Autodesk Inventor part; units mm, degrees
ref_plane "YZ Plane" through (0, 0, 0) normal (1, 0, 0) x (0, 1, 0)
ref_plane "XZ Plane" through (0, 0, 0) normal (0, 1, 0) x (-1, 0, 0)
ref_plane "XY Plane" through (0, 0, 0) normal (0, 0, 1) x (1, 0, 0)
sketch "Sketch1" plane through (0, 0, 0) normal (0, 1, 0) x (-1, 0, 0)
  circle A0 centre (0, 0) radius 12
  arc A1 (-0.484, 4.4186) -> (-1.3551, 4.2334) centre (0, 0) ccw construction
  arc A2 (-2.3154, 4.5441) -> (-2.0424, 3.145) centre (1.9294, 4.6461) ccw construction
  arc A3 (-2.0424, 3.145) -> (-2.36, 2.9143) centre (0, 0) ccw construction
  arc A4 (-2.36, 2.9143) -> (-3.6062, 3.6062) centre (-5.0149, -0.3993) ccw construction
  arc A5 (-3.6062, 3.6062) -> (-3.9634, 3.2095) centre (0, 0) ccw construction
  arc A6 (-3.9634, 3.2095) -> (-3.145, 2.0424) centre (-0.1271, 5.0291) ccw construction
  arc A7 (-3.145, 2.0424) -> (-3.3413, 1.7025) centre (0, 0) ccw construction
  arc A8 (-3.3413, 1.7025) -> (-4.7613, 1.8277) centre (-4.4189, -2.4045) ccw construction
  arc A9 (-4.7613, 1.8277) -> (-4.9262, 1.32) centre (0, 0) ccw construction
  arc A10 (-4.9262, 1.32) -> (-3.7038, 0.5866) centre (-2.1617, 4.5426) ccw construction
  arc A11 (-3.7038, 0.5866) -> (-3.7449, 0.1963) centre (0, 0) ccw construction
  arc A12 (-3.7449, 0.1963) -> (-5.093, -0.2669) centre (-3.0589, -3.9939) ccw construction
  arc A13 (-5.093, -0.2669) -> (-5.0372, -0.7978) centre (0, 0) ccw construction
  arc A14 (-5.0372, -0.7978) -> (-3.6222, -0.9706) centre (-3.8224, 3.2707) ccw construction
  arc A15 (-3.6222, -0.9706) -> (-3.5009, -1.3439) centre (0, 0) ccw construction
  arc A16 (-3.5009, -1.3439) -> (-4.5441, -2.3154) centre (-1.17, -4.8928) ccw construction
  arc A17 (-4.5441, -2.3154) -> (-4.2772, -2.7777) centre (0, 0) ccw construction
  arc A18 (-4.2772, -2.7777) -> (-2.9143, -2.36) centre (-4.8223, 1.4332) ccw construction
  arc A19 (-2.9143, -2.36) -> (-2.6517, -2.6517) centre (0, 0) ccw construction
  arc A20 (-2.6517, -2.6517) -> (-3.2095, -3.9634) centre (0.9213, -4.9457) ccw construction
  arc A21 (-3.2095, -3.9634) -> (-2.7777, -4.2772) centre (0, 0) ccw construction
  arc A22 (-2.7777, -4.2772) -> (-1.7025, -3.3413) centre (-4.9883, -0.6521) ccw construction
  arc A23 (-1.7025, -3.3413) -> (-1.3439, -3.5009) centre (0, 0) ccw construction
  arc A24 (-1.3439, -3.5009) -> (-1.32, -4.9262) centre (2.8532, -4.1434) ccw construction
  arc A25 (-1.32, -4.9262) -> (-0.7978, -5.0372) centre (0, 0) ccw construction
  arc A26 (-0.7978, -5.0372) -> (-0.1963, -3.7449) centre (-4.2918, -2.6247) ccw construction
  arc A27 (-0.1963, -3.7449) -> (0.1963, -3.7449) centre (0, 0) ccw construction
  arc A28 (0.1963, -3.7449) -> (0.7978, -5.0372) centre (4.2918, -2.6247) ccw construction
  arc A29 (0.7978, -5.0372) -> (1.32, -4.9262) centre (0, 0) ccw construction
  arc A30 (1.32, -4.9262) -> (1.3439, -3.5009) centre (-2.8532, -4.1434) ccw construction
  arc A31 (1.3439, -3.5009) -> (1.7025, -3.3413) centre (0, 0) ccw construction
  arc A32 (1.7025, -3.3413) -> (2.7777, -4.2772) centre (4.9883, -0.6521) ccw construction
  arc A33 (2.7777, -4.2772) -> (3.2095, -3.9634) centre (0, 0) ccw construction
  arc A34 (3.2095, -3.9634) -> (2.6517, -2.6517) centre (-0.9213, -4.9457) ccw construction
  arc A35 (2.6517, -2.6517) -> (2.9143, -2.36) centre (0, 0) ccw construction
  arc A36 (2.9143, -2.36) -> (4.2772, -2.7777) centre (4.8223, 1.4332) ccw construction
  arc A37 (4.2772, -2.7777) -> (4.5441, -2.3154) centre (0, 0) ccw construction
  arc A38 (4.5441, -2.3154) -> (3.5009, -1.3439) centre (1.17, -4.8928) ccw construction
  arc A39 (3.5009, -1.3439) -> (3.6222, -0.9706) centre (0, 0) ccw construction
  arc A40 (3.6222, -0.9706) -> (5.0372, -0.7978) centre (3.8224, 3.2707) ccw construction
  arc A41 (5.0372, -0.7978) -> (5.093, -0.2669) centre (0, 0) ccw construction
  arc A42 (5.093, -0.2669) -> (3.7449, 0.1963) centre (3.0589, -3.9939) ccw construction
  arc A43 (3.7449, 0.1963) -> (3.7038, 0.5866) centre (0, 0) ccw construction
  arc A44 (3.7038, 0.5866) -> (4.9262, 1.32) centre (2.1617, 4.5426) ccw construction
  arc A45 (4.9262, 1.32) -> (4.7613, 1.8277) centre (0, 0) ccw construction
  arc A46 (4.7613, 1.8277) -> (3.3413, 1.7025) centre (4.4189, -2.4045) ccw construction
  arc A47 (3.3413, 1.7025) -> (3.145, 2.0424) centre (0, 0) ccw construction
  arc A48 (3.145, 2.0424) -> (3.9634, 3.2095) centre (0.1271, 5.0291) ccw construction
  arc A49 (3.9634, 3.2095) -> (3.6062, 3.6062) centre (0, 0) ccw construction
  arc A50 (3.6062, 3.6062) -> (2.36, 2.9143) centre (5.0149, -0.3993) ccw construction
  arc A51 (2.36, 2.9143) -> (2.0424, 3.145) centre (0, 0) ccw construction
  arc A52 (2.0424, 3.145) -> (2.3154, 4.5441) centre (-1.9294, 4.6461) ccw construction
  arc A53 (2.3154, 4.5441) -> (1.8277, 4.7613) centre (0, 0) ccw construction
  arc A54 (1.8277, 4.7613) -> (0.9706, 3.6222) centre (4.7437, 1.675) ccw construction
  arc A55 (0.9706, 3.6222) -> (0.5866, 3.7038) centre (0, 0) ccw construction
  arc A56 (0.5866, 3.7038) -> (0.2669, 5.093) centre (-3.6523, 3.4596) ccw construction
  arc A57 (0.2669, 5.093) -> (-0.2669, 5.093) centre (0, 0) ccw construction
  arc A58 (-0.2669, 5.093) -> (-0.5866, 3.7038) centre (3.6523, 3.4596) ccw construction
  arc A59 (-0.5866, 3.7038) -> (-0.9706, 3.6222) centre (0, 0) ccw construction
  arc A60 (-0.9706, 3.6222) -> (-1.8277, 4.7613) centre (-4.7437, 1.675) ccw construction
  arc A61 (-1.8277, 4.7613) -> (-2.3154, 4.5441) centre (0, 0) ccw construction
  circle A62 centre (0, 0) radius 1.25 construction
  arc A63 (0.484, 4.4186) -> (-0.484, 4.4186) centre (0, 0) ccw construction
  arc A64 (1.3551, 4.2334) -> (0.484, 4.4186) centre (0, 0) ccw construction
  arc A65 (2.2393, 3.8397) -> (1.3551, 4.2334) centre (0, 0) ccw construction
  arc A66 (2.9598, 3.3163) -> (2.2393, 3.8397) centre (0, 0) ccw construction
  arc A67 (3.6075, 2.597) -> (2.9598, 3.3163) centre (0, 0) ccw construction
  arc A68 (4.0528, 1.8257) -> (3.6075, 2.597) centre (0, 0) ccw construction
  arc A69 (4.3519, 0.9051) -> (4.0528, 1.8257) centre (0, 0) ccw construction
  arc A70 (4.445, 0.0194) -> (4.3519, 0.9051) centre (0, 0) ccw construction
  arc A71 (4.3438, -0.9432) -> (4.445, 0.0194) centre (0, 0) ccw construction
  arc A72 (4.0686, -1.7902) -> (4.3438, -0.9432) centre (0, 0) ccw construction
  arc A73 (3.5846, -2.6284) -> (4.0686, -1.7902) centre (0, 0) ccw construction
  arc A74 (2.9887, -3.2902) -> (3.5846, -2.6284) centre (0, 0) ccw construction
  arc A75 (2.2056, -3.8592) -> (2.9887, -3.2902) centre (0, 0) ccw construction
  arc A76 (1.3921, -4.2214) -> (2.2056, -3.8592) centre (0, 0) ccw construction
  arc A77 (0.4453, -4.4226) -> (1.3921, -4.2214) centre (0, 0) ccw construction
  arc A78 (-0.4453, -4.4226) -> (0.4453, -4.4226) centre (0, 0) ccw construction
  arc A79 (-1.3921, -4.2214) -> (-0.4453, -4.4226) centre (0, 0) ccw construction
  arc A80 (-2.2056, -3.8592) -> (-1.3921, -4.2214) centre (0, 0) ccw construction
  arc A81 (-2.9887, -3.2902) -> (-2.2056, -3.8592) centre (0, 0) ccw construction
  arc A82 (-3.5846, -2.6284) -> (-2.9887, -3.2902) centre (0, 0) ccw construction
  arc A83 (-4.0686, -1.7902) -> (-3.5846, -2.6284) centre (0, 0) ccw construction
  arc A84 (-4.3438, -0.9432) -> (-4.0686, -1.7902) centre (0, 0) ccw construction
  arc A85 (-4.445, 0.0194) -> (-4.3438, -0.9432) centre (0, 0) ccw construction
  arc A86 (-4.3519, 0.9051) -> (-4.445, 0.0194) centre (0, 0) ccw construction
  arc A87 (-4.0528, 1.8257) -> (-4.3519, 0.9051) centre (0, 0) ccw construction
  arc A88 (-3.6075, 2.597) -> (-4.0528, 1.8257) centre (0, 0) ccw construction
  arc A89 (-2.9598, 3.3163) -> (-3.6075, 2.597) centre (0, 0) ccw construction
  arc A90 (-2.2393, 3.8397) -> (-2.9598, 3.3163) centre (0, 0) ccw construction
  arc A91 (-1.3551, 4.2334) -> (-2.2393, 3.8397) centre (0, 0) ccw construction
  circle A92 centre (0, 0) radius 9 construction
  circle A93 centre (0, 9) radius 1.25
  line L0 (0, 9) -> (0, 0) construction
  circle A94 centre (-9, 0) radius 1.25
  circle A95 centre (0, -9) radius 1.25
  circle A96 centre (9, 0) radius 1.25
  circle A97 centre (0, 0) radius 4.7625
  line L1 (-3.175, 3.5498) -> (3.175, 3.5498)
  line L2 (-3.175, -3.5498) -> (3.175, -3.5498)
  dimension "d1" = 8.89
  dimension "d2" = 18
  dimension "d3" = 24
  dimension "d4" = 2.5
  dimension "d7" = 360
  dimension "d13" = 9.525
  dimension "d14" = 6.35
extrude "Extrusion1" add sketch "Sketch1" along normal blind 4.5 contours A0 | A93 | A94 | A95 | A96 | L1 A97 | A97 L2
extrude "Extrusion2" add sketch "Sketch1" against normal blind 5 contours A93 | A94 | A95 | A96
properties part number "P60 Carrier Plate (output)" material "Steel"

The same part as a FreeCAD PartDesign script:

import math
import FreeCAD as App
import Part
import Sketcher
from FreeCAD import Vector

doc = App.newDocument("Part")
body = doc.addObject("PartDesign::Body", "Body")

# Sketch on XZ plane
sketch1 = doc.addObject("Sketcher::SketchObject", "Sketch")
body.addObject(sketch1)
sketch1.AttachmentSupport = (doc.XZ_Plane, [""])
sketch1.MapMode = "FlatFace"
sketch1.addGeometry([
    Part.Circle(Vector(0, 0, 0), Vector(0, 0, 1), 12),  # 0
    Part.ArcOfCircle(Part.Circle(Vector(0, 0, 0), Vector(0, 0, 1), 4.8), math.radians(132), math.radians(228)),  # 1
    Part.LineSegment(Vector(-3.2, -3.5, 0), Vector(3.2, -3.5, 0)),  # 2
    Part.ArcOfCircle(Part.Circle(Vector(0, 0, 0), Vector(0, 0, 1), 4.8), math.radians(-48), math.radians(48)),  # 3
    Part.LineSegment(Vector(3.2, 3.5, 0), Vector(-3.2, 3.5, 0)),  # 4
], False)
sketch1.addConstraint([
    Sketcher.Constraint("Coincident", 1, 2, 2, 1),
    Sketcher.Constraint("Coincident", 2, 2, 3, 1),
    Sketcher.Constraint("Coincident", 3, 2, 4, 1),
    Sketcher.Constraint("Coincident", 4, 2, 1, 1),
    Sketcher.Constraint("Horizontal", 2),
    Sketcher.Constraint("Horizontal", 4),
    Sketcher.Constraint("Coincident", 0, 3, -1, 1),
    Sketcher.Constraint("Coincident", 1, 3, -1, 1),
    Sketcher.Constraint("Coincident", 3, 3, -1, 1),
    Sketcher.Constraint("Equal", 1, 3),
    Sketcher.Constraint("Vertical", 2, 2, 3, 2),
    Sketcher.Constraint("Diameter", 0, 24.0),
    Sketcher.Constraint("DistanceX", 2, 1, 2, 2, 6.35),
    Sketcher.Constraint("Radius", 1, 4.7625),
])
pad1 = doc.addObject("PartDesign::Pad", "Pad")
body.addObject(pad1)
pad1.Profile = sketch1
pad1.Length = 4.5
pad1.Reversed = True

# Sketch on XZ plane
sketch2 = doc.addObject("Sketcher::SketchObject", "Sketch001")
body.addObject(sketch2)
sketch2.AttachmentSupport = (doc.XZ_Plane, [""])
sketch2.MapMode = "FlatFace"
sketch2.addGeometry([
    Part.Circle(Vector(0, 9, 0), Vector(0, 0, 1), 1.2),
    Part.Circle(Vector(9, 0, 0), Vector(0, 0, 1), 1.2),
    Part.Circle(Vector(0, -9, 0), Vector(0, 0, 1), 1.2),
    Part.Circle(Vector(-9, 0, 0), Vector(0, 0, 1), 1.2),
], False)
sketch2.addConstraint([
    Sketcher.Constraint("Equal", 0, 1),
    Sketcher.Constraint("Equal", 1, 2),
    Sketcher.Constraint("Equal", 2, 3),
    Sketcher.Constraint("Symmetric", 0, 3, 2, 3, -1, 1),
    Sketcher.Constraint("Symmetric", 1, 3, 3, 3, -1, 1),
    Sketcher.Constraint("PointOnObject", 0, 3, -2),
    Sketcher.Constraint("PointOnObject", 1, 3, -1),
    Sketcher.Constraint("Diameter", 0, 2.5),
    Sketcher.Constraint("DistanceY", 2, 3, 0, 3, 18.0),
    Sketcher.Constraint("DistanceX", 3, 3, 1, 3, 18.0),
])
pad2 = doc.addObject("PartDesign::Pad", "Pad001")
body.addObject(pad2)
pad2.Profile = sketch2
pad2.Length = 5

doc.recompute()
